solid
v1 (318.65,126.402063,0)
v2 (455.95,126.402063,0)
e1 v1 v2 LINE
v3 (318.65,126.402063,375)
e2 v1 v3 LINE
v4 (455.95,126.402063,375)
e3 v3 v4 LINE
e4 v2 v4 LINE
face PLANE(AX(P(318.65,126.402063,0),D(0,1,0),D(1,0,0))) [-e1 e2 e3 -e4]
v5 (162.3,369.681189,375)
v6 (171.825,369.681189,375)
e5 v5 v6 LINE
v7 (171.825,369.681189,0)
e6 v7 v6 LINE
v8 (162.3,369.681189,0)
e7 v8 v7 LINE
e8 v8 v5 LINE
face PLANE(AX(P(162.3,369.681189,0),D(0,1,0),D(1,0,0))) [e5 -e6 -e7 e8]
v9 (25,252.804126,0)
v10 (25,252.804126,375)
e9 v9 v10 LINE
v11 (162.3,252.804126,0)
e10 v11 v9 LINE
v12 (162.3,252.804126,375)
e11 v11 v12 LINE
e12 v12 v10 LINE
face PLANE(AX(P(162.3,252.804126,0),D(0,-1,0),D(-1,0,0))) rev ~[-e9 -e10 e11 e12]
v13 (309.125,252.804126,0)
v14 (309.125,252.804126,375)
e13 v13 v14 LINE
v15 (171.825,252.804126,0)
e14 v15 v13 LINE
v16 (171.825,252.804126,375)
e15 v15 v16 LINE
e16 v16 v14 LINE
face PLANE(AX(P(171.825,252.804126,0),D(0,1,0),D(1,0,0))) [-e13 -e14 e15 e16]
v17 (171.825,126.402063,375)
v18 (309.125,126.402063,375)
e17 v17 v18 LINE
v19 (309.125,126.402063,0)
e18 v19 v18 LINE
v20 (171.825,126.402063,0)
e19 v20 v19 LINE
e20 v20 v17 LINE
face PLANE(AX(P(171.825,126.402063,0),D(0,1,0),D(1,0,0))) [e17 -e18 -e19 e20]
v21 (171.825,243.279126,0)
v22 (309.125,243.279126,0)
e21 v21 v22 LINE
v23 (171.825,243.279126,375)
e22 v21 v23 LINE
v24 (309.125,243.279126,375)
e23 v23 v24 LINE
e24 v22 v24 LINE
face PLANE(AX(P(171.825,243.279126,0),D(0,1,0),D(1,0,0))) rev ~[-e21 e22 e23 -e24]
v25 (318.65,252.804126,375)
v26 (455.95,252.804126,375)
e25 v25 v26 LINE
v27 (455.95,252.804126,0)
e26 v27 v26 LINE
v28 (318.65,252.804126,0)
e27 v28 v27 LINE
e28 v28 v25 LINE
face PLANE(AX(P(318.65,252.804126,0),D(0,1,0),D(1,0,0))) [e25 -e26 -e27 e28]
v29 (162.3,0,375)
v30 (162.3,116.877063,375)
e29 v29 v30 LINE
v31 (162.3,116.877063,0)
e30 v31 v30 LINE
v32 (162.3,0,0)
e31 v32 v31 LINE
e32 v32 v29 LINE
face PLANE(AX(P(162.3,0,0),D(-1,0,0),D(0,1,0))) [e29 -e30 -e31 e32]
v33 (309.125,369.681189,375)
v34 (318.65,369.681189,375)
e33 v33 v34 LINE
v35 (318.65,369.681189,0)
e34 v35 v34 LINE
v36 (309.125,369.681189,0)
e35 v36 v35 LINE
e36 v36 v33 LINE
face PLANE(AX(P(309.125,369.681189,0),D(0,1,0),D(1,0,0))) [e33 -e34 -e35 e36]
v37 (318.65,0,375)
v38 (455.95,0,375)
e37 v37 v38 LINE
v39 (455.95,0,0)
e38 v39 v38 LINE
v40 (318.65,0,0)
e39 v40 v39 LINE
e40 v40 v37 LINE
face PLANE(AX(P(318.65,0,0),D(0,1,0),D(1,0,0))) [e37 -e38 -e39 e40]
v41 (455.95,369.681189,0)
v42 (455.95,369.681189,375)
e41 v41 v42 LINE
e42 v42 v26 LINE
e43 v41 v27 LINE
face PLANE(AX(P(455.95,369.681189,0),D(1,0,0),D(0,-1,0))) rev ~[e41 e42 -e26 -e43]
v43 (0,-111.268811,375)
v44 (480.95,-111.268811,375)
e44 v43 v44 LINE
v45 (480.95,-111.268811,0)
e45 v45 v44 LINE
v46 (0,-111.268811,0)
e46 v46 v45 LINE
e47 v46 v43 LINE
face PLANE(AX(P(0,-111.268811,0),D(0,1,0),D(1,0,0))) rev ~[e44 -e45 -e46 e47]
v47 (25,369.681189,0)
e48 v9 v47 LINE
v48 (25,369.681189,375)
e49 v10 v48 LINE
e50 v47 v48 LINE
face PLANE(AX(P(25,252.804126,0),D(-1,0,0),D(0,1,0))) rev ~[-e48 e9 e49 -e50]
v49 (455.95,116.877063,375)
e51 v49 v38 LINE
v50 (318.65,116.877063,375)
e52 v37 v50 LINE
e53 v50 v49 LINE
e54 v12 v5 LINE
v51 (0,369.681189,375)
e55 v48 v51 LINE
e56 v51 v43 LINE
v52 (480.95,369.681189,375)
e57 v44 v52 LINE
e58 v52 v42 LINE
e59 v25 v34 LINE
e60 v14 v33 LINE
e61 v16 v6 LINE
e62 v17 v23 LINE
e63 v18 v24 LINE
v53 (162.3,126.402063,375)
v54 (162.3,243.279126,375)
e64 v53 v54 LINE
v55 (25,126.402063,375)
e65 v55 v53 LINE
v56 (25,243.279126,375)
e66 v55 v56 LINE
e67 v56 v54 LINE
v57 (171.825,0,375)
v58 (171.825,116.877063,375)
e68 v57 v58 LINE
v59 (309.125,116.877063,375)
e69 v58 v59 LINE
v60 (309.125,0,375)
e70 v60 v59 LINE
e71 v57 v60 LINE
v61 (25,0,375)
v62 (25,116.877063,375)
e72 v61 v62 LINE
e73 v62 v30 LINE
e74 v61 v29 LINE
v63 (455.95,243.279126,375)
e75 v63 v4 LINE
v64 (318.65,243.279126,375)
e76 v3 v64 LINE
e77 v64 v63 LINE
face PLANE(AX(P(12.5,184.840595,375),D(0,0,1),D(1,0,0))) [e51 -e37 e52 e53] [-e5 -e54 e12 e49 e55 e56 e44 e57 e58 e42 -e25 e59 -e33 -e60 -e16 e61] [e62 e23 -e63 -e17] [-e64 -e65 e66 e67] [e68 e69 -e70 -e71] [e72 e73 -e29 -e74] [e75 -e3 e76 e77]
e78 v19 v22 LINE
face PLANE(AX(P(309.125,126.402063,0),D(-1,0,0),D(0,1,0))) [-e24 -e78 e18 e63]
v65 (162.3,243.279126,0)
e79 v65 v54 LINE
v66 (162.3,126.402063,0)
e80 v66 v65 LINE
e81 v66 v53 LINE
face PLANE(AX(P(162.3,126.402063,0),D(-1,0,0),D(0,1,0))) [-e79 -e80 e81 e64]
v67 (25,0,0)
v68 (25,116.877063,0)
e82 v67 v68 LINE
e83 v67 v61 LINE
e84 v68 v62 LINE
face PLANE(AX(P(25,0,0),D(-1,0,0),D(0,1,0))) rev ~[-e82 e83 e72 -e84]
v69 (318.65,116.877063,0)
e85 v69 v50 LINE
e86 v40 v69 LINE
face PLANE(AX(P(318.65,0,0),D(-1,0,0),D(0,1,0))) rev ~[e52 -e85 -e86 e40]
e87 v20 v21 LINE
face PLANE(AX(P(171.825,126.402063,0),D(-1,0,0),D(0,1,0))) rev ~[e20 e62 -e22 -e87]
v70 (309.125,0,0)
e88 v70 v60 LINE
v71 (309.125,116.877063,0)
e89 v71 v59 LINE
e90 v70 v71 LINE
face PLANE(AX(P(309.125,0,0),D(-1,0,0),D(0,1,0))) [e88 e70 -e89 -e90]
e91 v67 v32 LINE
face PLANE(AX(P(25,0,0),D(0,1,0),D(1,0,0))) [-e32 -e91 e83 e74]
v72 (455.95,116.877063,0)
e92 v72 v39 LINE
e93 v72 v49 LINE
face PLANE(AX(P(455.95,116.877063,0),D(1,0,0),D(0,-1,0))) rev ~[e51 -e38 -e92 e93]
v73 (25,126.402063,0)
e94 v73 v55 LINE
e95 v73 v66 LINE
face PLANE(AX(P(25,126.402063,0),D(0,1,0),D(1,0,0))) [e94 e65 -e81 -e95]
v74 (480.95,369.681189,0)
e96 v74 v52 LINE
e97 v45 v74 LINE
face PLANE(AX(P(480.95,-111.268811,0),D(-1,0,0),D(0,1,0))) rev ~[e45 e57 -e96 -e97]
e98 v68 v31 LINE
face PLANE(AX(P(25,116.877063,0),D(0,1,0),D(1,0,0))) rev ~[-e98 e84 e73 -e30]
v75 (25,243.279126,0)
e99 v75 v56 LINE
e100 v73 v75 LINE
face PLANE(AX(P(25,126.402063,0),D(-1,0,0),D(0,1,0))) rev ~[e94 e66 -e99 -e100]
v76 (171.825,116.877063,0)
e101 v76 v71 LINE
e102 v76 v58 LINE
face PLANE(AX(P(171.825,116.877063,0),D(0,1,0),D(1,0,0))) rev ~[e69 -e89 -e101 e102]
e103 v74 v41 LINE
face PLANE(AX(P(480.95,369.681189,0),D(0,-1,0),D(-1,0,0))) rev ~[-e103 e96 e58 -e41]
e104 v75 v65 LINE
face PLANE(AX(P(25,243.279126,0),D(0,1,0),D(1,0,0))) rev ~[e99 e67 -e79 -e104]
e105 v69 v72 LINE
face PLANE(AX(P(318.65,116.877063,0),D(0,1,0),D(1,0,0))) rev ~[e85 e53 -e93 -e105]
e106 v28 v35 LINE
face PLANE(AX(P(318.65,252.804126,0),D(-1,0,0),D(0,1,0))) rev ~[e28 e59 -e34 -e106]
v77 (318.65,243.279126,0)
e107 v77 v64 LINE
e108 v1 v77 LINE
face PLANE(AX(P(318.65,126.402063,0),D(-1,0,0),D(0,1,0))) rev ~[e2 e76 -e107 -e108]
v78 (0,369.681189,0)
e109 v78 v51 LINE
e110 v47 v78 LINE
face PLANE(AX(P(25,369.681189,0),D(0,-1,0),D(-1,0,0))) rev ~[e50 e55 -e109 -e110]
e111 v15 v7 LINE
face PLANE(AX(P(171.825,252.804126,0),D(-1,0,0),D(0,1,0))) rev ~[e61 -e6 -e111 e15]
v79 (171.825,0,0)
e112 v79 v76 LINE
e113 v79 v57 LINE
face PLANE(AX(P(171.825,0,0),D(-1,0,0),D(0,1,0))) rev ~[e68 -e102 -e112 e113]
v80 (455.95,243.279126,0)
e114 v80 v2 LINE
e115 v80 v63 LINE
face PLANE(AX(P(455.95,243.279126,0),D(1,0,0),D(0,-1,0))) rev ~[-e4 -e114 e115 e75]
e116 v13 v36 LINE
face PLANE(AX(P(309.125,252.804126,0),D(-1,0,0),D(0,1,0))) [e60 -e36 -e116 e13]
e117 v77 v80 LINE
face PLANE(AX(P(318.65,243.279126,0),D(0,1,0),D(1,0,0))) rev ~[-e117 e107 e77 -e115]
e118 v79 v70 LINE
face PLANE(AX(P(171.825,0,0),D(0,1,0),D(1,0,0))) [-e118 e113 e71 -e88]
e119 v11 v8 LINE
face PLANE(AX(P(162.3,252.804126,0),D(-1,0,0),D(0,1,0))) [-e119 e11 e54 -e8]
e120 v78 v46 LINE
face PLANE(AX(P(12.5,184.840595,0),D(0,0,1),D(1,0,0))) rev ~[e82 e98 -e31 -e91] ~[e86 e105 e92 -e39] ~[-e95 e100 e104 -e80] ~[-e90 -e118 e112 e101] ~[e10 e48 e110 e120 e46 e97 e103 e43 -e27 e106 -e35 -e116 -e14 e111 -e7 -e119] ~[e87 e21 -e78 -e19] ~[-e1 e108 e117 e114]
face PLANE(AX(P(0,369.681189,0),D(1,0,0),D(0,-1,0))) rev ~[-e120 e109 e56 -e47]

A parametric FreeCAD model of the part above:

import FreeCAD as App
import Part
import Sketcher
Q = App.Units.Quantity


def add_polygon(sketch, points):
    """Adds a closed chain of lines whose ends are joined by coincident constraints."""
    first, n = sketch.GeometryCount, len(points)
    for a, b in zip(points, points[1:] + points[:1]):
        sketch.addGeometry(Part.LineSegment(App.Vector(*a, 0), App.Vector(*b, 0)), False)
    for i in range(n):
        sketch.addConstraint(Sketcher.Constraint("Coincident", first + i, 2, first + (i + 1) % n, 1))

doc = App.newDocument("Part")
body = doc.addObject("PartDesign::Body", "Body")

# Sketch on XY plane
sketch1 = body.newObject("Sketcher::SketchObject", "Sketch")
sketch1.AttachmentSupport = (doc.getObject("XY_Plane"), [""])
sketch1.MapMode = "FlatFace"
add_polygon(sketch1, [(480.95, 369.681189), (455.95, 369.681189), (455.95, 252.804126), (318.65, 252.804126), (318.65, 369.681189), (309.125, 369.681189), (309.125, 252.804126), (171.825, 252.804126), (171.825, 369.681189), (162.3, 369.681189), (162.3, 252.804126), (25, 252.804126), (25, 369.681189), (0, 369.681189), (0, -111.268811), (480.95, -111.268811)])  # lines 0-15
add_polygon(sketch1, [(171.825, 116.877063), (309.125, 116.877063), (309.125, 0), (171.825, 0)])  # lines 16-19
add_polygon(sketch1, [(318.65, 0), (318.65, 116.877063), (455.95, 116.877063), (455.95, 0)])  # lines 20-23
add_polygon(sketch1, [(25, 0), (25, 116.877063), (162.3, 116.877063), (162.3, 0)])  # lines 24-27
add_polygon(sketch1, [(162.3, 126.402063), (25, 126.402063), (25, 243.279126), (162.3, 243.279126)])  # lines 28-31
add_polygon(sketch1, [(309.125, 126.402063), (171.825, 126.402063), (171.825, 243.279126), (309.125, 243.279126)])  # lines 32-35
add_polygon(sketch1, [(455.95, 126.402063), (318.65, 126.402063), (318.65, 243.279126), (455.95, 243.279126)])  # lines 36-39
sketch1.addConstraint(Sketcher.Constraint("Horizontal", 0))
sketch1.addConstraint(Sketcher.Constraint("Vertical", 1))
sketch1.addConstraint(Sketcher.Constraint("Horizontal", 2))
sketch1.addConstraint(Sketcher.Constraint("Vertical", 3))
sketch1.addConstraint(Sketcher.Constraint("Horizontal", 4))
sketch1.addConstraint(Sketcher.Constraint("Vertical", 5))
sketch1.addConstraint(Sketcher.Constraint("Horizontal", 6))
sketch1.addConstraint(Sketcher.Constraint("Vertical", 7))
sketch1.addConstraint(Sketcher.Constraint("Horizontal", 8))
sketch1.addConstraint(Sketcher.Constraint("Vertical", 9))
sketch1.addConstraint(Sketcher.Constraint("Horizontal", 10))
sketch1.addConstraint(Sketcher.Constraint("Vertical", 11))
sketch1.addConstraint(Sketcher.Constraint("Horizontal", 12))
sketch1.addConstraint(Sketcher.Constraint("Vertical", 13))
sketch1.addConstraint(Sketcher.Constraint("Horizontal", 14))
sketch1.addConstraint(Sketcher.Constraint("Vertical", 15))
sketch1.addConstraint(Sketcher.Constraint("Horizontal", 16))
sketch1.addConstraint(Sketcher.Constraint("Vertical", 17))
sketch1.addConstraint(Sketcher.Constraint("Horizontal", 18))
sketch1.addConstraint(Sketcher.Constraint("Vertical", 19))
sketch1.addConstraint(Sketcher.Constraint("Vertical", 20))
sketch1.addConstraint(Sketcher.Constraint("Horizontal", 21))
sketch1.addConstraint(Sketcher.Constraint("Vertical", 22))
sketch1.addConstraint(Sketcher.Constraint("Horizontal", 23))
sketch1.addConstraint(Sketcher.Constraint("Vertical", 24))
sketch1.addConstraint(Sketcher.Constraint("Horizontal", 25))
sketch1.addConstraint(Sketcher.Constraint("Vertical", 26))
sketch1.addConstraint(Sketcher.Constraint("Horizontal", 27))
sketch1.addConstraint(Sketcher.Constraint("Horizontal", 28))
sketch1.addConstraint(Sketcher.Constraint("Vertical", 29))
sketch1.addConstraint(Sketcher.Constraint("Horizontal", 30))
sketch1.addConstraint(Sketcher.Constraint("Vertical", 31))
sketch1.addConstraint(Sketcher.Constraint("Horizontal", 32))
sketch1.addConstraint(Sketcher.Constraint("Vertical", 33))
sketch1.addConstraint(Sketcher.Constraint("Horizontal", 34))
sketch1.addConstraint(Sketcher.Constraint("Vertical", 35))
sketch1.addConstraint(Sketcher.Constraint("Horizontal", 36))
sketch1.addConstraint(Sketcher.Constraint("Vertical", 37))
sketch1.addConstraint(Sketcher.Constraint("Horizontal", 38))
sketch1.addConstraint(Sketcher.Constraint("Vertical", 39))
sketch1.addConstraint(Sketcher.Constraint("PointOnObject", 12, 2, -2))
sketch1.addConstraint(Sketcher.Constraint("PointOnObject", 17, 2, -1))
sketch1.addConstraint(Sketcher.Constraint("PointOnObject", 22, 2, -1))
sketch1.addConstraint(Sketcher.Constraint("PointOnObject", 26, 2, -1))
sketch1.addConstraint(Sketcher.Constraint("Horizontal", 0, 2, 3, 2))
sketch1.addConstraint(Sketcher.Constraint("Horizontal", 2, 2, 5, 2))
sketch1.addConstraint(Sketcher.Constraint("Horizontal", 4, 2, 7, 2))
sketch1.addConstraint(Sketcher.Constraint("Horizontal", 6, 2, 9, 2))
sketch1.addConstraint(Sketcher.Constraint("Horizontal", 8, 2, 11, 2))
sketch1.addConstraint(Sketcher.Constraint("Horizontal", 19, 2, 20, 2))
sketch1.addConstraint(Sketcher.Constraint("Horizontal", 21, 2, 24, 2))
sketch1.addConstraint(Sketcher.Constraint("Horizontal", 31, 2, 32, 2))
sketch1.addConstraint(Sketcher.Constraint("Horizontal", 30, 2, 33, 2))
sketch1.addConstraint(Sketcher.Constraint("Horizontal", 35, 2, 36, 2))
sketch1.addConstraint(Sketcher.Constraint("Horizontal", 34, 2, 37, 2))
sketch1.addConstraint(Sketcher.Constraint("Vertical", 5, 2, 16, 2))
sketch1.addConstraint(Sketcher.Constraint("Vertical", 7, 2, 18, 2))
sketch1.addConstraint(Sketcher.Constraint("Vertical", 3, 2, 20, 2))
sketch1.addConstraint(Sketcher.Constraint("Vertical", 1, 2, 21, 2))
sketch1.addConstraint(Sketcher.Constraint("Vertical", 11, 2, 24, 2))
sketch1.addConstraint(Sketcher.Constraint("Vertical", 9, 2, 25, 2))
sketch1.addConstraint(Sketcher.Constraint("Vertical", 27, 2, 28, 2))
sketch1.addConstraint(Sketcher.Constraint("Vertical", 26, 2, 30, 2))
sketch1.addConstraint(Sketcher.Constraint("Vertical", 19, 2, 32, 2))
sketch1.addConstraint(Sketcher.Constraint("Vertical", 17, 2, 34, 2))
sketch1.addConstraint(Sketcher.Constraint("Vertical", 23, 2, 36, 2))
sketch1.addConstraint(Sketcher.Constraint("Vertical", 22, 2, 38, 2))
sketch1.addConstraint(Sketcher.Constraint("Equal", 2, 6))
sketch1.addConstraint(Sketcher.Constraint("Equal", 4, 8))
sketch1.addConstraint(Sketcher.Constraint("Equal", 6, 10))
sketch1.addConstraint(Sketcher.Constraint("Equal", 0, 12))
sketch1.addConstraint(Sketcher.Constraint("Equal", 14, 13))
sketch1.addConstraint(Sketcher.Constraint("Equal", 11, 17))
sketch1.addConstraint(Sketcher.Constraint("Equal", 26, 29))
sketch1.addConstraint(Sketcher.Constraint("DistanceX", 0, 2, 0, 1, Q("25 mm")))
sketch1.addConstraint(Sketcher.Constraint("DistanceX", 2, 2, 2, 1, Q("137.3 mm")))
sketch1.addConstraint(Sketcher.Constraint("DistanceX", 14, 1, 14, 2, Q("480.95 mm")))
sketch1.addConstraint(Sketcher.Constraint("DistanceY", 24, 2, 28, 2, Q("9.525 mm")))
sketch1.addConstraint(Sketcher.Constraint("DistanceY", 29, 2, 10, 2, Q("9.525 mm")))
sketch1.addConstraint(Sketcher.Constraint("DistanceY", 1, 2, 1, 1, Q("116.877063 mm")))
pad1 = body.newObject("PartDesign::Pad", "Pad")
pad1.Profile = sketch1
pad1.Length = 375

doc.recompute()
